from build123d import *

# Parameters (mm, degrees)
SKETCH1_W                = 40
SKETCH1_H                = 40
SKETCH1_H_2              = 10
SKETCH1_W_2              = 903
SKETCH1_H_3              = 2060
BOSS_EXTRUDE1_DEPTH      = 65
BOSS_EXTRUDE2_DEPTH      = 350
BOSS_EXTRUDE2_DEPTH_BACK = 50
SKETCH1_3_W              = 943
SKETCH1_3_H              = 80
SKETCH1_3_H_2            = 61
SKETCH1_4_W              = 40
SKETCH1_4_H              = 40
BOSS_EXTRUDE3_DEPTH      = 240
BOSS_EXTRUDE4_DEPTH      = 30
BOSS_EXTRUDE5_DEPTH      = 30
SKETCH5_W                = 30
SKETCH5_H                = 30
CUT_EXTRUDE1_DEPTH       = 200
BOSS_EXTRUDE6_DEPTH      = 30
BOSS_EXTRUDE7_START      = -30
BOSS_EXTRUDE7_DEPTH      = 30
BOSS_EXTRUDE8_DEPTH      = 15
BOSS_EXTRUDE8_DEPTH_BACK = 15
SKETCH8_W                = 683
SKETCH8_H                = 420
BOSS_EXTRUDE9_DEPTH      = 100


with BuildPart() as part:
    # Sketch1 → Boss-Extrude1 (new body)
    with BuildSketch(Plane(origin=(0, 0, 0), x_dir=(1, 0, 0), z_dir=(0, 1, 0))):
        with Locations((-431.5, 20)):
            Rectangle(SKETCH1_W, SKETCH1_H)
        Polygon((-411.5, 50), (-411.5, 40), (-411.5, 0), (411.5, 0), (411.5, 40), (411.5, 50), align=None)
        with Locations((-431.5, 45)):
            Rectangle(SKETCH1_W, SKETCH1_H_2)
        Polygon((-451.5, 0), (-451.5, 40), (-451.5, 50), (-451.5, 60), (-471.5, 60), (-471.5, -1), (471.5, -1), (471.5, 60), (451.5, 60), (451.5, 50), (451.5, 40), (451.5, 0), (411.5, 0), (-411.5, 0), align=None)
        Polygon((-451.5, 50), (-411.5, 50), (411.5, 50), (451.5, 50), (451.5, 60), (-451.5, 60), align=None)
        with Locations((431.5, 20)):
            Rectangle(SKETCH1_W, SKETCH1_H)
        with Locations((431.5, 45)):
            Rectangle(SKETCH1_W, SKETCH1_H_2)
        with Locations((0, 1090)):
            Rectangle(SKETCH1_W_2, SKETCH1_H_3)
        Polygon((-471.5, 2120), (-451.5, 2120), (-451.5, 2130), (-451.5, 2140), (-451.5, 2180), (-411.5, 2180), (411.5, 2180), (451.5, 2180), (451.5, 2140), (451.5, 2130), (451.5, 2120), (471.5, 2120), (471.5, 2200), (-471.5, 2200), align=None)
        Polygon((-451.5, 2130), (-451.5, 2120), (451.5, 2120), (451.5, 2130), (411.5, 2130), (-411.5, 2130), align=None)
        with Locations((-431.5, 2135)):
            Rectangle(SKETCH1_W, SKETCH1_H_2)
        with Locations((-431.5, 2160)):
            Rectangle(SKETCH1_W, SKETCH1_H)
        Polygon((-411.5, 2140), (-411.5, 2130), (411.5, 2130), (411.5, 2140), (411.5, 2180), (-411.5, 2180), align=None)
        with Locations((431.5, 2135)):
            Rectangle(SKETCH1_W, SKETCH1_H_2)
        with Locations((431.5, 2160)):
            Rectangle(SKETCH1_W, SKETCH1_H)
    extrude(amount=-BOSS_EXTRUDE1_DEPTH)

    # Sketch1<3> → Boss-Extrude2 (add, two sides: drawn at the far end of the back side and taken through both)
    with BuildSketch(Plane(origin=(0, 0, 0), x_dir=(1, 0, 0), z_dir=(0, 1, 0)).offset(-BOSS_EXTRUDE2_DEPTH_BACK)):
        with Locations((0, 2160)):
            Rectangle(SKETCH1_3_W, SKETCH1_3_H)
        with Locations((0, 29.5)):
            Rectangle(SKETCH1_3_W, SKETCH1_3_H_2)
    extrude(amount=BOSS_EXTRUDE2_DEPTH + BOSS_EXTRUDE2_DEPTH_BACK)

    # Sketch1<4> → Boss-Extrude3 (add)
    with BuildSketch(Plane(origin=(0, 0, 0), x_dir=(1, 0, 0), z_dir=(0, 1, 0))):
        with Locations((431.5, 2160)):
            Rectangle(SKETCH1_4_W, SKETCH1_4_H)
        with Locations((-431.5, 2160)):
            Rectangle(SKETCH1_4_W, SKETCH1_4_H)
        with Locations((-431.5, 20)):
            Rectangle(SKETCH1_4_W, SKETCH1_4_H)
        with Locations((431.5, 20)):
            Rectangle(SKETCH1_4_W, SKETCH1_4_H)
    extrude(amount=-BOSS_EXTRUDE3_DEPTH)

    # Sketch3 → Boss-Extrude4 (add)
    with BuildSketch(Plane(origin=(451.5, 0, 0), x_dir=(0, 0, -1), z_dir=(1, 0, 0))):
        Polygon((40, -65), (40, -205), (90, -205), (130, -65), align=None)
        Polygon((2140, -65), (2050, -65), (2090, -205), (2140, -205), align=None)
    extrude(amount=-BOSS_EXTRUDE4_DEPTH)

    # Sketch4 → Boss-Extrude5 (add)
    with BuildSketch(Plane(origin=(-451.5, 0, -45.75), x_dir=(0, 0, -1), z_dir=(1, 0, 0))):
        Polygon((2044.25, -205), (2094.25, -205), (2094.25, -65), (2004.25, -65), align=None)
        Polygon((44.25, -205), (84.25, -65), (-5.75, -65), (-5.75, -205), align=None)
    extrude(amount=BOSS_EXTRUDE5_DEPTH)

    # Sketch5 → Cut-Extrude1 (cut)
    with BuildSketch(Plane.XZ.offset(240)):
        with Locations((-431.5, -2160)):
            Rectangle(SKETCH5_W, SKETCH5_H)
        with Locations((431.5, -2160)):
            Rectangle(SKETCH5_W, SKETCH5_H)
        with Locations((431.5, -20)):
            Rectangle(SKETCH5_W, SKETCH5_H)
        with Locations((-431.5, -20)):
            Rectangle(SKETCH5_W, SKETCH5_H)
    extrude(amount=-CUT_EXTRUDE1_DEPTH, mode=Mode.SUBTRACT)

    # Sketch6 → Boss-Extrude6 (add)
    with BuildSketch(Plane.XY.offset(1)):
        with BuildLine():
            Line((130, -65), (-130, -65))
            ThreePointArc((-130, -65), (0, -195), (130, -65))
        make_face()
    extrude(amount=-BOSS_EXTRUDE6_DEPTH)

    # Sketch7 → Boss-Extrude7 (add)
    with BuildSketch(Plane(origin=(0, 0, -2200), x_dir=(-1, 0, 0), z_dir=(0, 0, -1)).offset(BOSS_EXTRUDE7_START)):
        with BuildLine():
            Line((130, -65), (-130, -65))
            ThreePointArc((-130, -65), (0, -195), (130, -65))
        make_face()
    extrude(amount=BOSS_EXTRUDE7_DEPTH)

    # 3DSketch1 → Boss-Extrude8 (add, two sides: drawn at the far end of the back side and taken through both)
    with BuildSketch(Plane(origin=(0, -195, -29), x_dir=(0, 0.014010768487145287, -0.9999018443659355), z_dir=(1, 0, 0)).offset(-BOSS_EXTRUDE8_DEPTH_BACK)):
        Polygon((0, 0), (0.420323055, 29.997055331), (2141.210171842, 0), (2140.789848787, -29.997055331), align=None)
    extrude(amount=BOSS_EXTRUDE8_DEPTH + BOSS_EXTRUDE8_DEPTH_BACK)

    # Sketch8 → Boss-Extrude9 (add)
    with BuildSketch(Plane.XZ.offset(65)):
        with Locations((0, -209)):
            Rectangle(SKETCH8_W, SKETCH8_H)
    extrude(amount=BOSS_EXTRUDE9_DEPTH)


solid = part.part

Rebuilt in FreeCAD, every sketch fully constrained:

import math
import FreeCAD as App
import Part
import Sketcher

V = App.Vector


def add_polygon(sketch, points):
    """Adds a closed chain of lines whose ends are joined by coincident constraints."""
    first, n = sketch.GeometryCount, len(points)
    for a, b in zip(points, points[1:] + points[:1]):
        sketch.addGeometry(Part.LineSegment(App.Vector(*a, 0), App.Vector(*b, 0)), False)
    for i in range(n):
        sketch.addConstraint(Sketcher.Constraint("Coincident", first + i, 2, first + (i + 1) % n, 1))

doc = App.newDocument("Part")
params = doc.addObject("Spreadsheet::Sheet", "Params")
for row, (alias, value) in enumerate([
    ("sketch1_width", "943 mm"),
    ("sketch1_width2", "20 mm"),
    ("sketch1_height", "61 mm"),
    ("sketch1_height2", "2060 mm"),
    ("sketch1_height3", "80 mm"),
    ("pad1_length", "65 mm"),
    ("sketch2_width", "943 mm"),
    ("sketch2_height", "80 mm"),
    ("sketch2_height2", "61 mm"),
    ("pad2_length", "350 mm"),
    ("pad2_length2", "50 mm"),
    ("sketch3_width", "40 mm"),
    ("pad3_length", "240 mm"),
    ("sketch4_width", "140 mm"),
    ("sketch4_height", "50 mm"),
    ("sketch4_height2", "90 mm"),
    ("pad4_length", "30 mm"),
    ("sketch5_width", "140 mm"),
    ("sketch5_height", "50 mm"),
    ("sketch5_height2", "90 mm"),
    ("pad5_length", "30 mm"),
    ("sketch6_width", "30 mm"),
    ("pocket1_length", "200 mm"),
    ("sketch7_radius", "130 mm"),
    ("pad6_length", "30 mm"),
    ("sketch8_radius", "130 mm"),
    ("pad7_length", "30 mm"),
    ("sketch9_width", "30 mm"),
    ("sketch9_height", "2140.999999 mm"),
    ("pad8_length", "15 mm"),
    ("pad8_length2", "15 mm"),
    ("sketch10_width", "683 mm"),
    ("sketch10_height", "420 mm"),
    ("pad9_length", "100 mm"),
], start=1):
    params.set(f"A{row}", alias)
    params.set(f"B{row}", "=" + value)
    params.setAlias(f"B{row}", alias)

body = doc.addObject("PartDesign::Body", "Body")

sketch1 = doc.addObject("Sketcher::SketchObject", "Sketch")
body.addObject(sketch1)
sketch1.AttachmentSupport = (doc.XZ_Plane, [""])
sketch1.MapMode = "FlatFace"
add_polygon(sketch1, [(-472, -60), (-472, 1), (472, 1), (472, -60), (452, -60), (452, -2120), (472, -2120), (472, -2200), (-472, -2200), (-472, -2120), (-452, -2120), (-452, -60)])
sketch1.addConstraint(Sketcher.Constraint("Vertical", 0))
sketch1.addConstraint(Sketcher.Constraint("Horizontal", 1))
sketch1.addConstraint(Sketcher.Constraint("Vertical", 2))
sketch1.addConstraint(Sketcher.Constraint("Horizontal", 3))
sketch1.addConstraint(Sketcher.Constraint("Vertical", 4))
sketch1.addConstraint(Sketcher.Constraint("Horizontal", 5))
sketch1.addConstraint(Sketcher.Constraint("Vertical", 6))
sketch1.addConstraint(Sketcher.Constraint("Horizontal", 7))
sketch1.addConstraint(Sketcher.Constraint("Vertical", 8))
sketch1.addConstraint(Sketcher.Constraint("Horizontal", 9))
sketch1.addConstraint(Sketcher.Constraint("Vertical", 10))
sketch1.addConstraint(Sketcher.Constraint("Horizontal", 11))
sketch1.addConstraint(Sketcher.Constraint("Symmetric", 5, 2, 8, 2, -2))
sketch1.addConstraint(Sketcher.Constraint("Symmetric", 3, 2, 10, 2, -2))
sketch1.addConstraint(Sketcher.Constraint("Vertical", 2, 2, 5, 2))
sketch1.addConstraint(Sketcher.Constraint("Vertical", 0, 2, 7, 2))
sketch1.addConstraint(Sketcher.Constraint("DistanceX", 1, 1, 1, 2, 943.0))
sketch1.addConstraint(Sketcher.Constraint("DistanceX", 3, 2, 3, 1, 20.0))
sketch1.addConstraint(Sketcher.Constraint("DistanceY", 0, 1, 0, 2, 61.0))
sketch1.addConstraint(Sketcher.Constraint("DistanceY", 4, 2, 4, 1, 2060.0))
sketch1.addConstraint(Sketcher.Constraint("DistanceY", 6, 2, 6, 1, 80.0))
sketch1.addConstraint(Sketcher.Constraint("DistanceY", -1, 1, 0, 2, 1.0))
sketch1.setExpression("Constraints[28]", "Params.sketch1_width")
sketch1.setExpression("Constraints[29]", "Params.sketch1_width2")
sketch1.setExpression("Constraints[30]", "Params.sketch1_height")
sketch1.setExpression("Constraints[31]", "Params.sketch1_height2")
sketch1.setExpression("Constraints[32]", "Params.sketch1_height3")
pad1 = doc.addObject("PartDesign::Pad", "Pad")
body.addObject(pad1)
pad1.Profile = sketch1
pad1.setExpression("Length", "Params.pad1_length")

sketch2 = doc.addObject("Sketcher::SketchObject", "Sketch001")
body.addObject(sketch2)
sketch2.AttachmentSupport = (doc.XZ_Plane, [""])
sketch2.MapMode = "FlatFace"
add_polygon(sketch2, [(-472, -2200), (-472, -2120), (472, -2120), (472, -2200)])
add_polygon(sketch2, [(-472, -60), (-472, 1), (472, 1), (472, -60)])
sketch2.addConstraint(Sketcher.Constraint("Vertical", 0))
sketch2.addConstraint(Sketcher.Constraint("Horizontal", 1))
sketch2.addConstraint(Sketcher.Constraint("Vertical", 2))
sketch2.addConstraint(Sketcher.Constraint("Horizontal", 3))
sketch2.addConstraint(Sketcher.Constraint("Vertical", 4))
sketch2.addConstraint(Sketcher.Constraint("Horizontal", 5))
sketch2.addConstraint(Sketcher.Constraint("Vertical", 6))
sketch2.addConstraint(Sketcher.Constraint("Horizontal", 7))
sketch2.addConstraint(Sketcher.Constraint("Vertical", 3, 2, 4, 2))
sketch2.addConstraint(Sketcher.Constraint("Vertical", 2, 2, 5, 2))
sketch2.addConstraint(Sketcher.Constraint("DistanceX", 1, 1, 1, 2, 943.0))
sketch2.addConstraint(Sketcher.Constraint("DistanceY", 0, 1, 0, 2, 80.0))
sketch2.addConstraint(Sketcher.Constraint("DistanceY", 4, 1, 4, 2, 61.0))
sketch2.addConstraint(Sketcher.Constraint("DistanceY", 0, 2, -1, 1, 2120.0))
sketch2.addConstraint(Sketcher.Constraint("DistanceY", -1, 1, 4, 2, 1.0))
sketch2.addConstraint(Sketcher.Constraint("DistanceX", 0, 2, -1, 1, 471.5))
sketch2.setExpression("Constraints[18]", "Params.sketch2_width")
sketch2.setExpression("Constraints[19]", "Params.sketch2_height")
sketch2.setExpression("Constraints[20]", "Params.sketch2_height2")
pad2 = doc.addObject("PartDesign::Pad", "Pad001")
body.addObject(pad2)
pad2.Profile = sketch2
pad2.Type = "TwoLengths"
pad2.setExpression("Length", "Params.pad2_length")
pad2.setExpression("Length2", "Params.pad2_length2")
pad2.Reversed = True

sketch3 = doc.addObject("Sketcher::SketchObject", "Sketch002")
body.addObject(sketch3)
sketch3.AttachmentSupport = (doc.XZ_Plane, [""])
sketch3.MapMode = "FlatFace"
add_polygon(sketch3, [(412, -2180), (412, -2140), (452, -2140), (452, -2180)])
add_polygon(sketch3, [(-452, -2180), (-452, -2140), (-412, -2140), (-412, -2180)])
add_polygon(sketch3, [(-452, -40), (-452, 0), (-412, 0), (-412, -40)])
add_polygon(sketch3, [(412, -40), (412, 0), (452, 0), (452, -40)])
sketch3.addConstraint(Sketcher.Constraint("Vertical", 0))
sketch3.addConstraint(Sketcher.Constraint("Horizontal", 1))
sketch3.addConstraint(Sketcher.Constraint("Vertical", 2))
sketch3.addConstraint(Sketcher.Constraint("Horizontal", 3))
sketch3.addConstraint(Sketcher.Constraint("Vertical", 4))
sketch3.addConstraint(Sketcher.Constraint("Horizontal", 5))
sketch3.addConstraint(Sketcher.Constraint("Vertical", 6))
sketch3.addConstraint(Sketcher.Constraint("Horizontal", 7))
sketch3.addConstraint(Sketcher.Constraint("Vertical", 8))
sketch3.addConstraint(Sketcher.Constraint("Horizontal", 9))
sketch3.addConstraint(Sketcher.Constraint("Vertical", 10))
sketch3.addConstraint(Sketcher.Constraint("Horizontal", 11))
sketch3.addConstraint(Sketcher.Constraint("Vertical", 12))
sketch3.addConstraint(Sketcher.Constraint("Horizontal", 13))
sketch3.addConstraint(Sketcher.Constraint("Vertical", 14))
sketch3.addConstraint(Sketcher.Constraint("Horizontal", 15))
sketch3.addConstraint(Sketcher.Constraint("Symmetric", 9, 2, 12, 2, -1, 1))
sketch3.addConstraint(Sketcher.Constraint("Symmetric", 1, 2, 4, 2, -2))
sketch3.addConstraint(Sketcher.Constraint("Symmetric", 3, 2, 6, 2, -2))
sketch3.addConstraint(Sketcher.Constraint("Symmetric", 8, 2, 13, 2, -2))
sketch3.addConstraint(Sketcher.Constraint("Horizontal", 11, 2, 14, 2))
sketch3.addConstraint(Sketcher.Constraint("Vertical", 7, 2, 8, 2))
sketch3.addConstraint(Sketcher.Constraint("Vertical", 6, 2, 9, 2))
sketch3.addConstraint(Sketcher.Constraint("Equal", 15, 0))
sketch3.addConstraint(Sketcher.Constraint("Equal", 6, 8))
sketch3.addConstraint(Sketcher.Constraint("DistanceX", 1, 1, 1, 2, 40.0))
sketch3.addConstraint(Sketcher.Constraint("DistanceY", 0, 2, -1, 1, 2140.0))
sketch3.addConstraint(Sketcher.Constraint("DistanceX", 4, 2, 0, 2, 863.0))
sketch3.setExpression("Constraints[41]", "Params.sketch3_width")
pad3 = doc.addObject("PartDesign::Pad", "Pad002")
body.addObject(pad3)
pad3.Profile = sketch3
pad3.setExpression("Length", "Params.pad3_length")

sketch4 = doc.addObject("Sketcher::SketchObject", "Sketch003")
body.addObject(sketch4)
sketch4.AttachmentSupport = (doc.YZ_Plane, [""])
sketch4.MapMode = "FlatFace"
sketch4.AttachmentOffset = App.Placement(V(0, 0, 451.5), App.Rotation())
add_polygon(sketch4, [(-65, -40), (-205, -40), (-205, -90), (-65, -130)])
add_polygon(sketch4, [(-65, -2140), (-65, -2050), (-205, -2090), (-205, -2140)])
sketch4.addConstraint(Sketcher.Constraint("Horizontal", 0))
sketch4.addConstraint(Sketcher.Constraint("Vertical", 1))
sketch4.addConstraint(Sketcher.Constraint("Vertical", 3))
sketch4.addConstraint(Sketcher.Constraint("Vertical", 4))
sketch4.addConstraint(Sketcher.Constraint("Vertical", 6))
sketch4.addConstraint(Sketcher.Constraint("Horizontal", 7))
sketch4.addConstraint(Sketcher.Constraint("Vertical", 3, 2, 4, 2))
sketch4.addConstraint(Sketcher.Constraint("Vertical", 1, 2, 5, 2))
sketch4.addConstraint(Sketcher.Constraint("Equal", 3, 4))
sketch4.addConstraint(Sketcher.Constraint("Equal", 1, 6))
sketch4.addConstraint(Sketcher.Constraint("DistanceX", 0, 2, 0, 1, 140.0))
sketch4.addConstraint(Sketcher.Constraint("DistanceY", 1, 2, 1, 1, 50.0))
sketch4.addConstraint(Sketcher.Constraint("DistanceY", 3, 1, 3, 2, 90.0))
sketch4.addConstraint(Sketcher.Constraint("DistanceX", 0, 2, -1, 1, 205.0))
sketch4.addConstraint(Sketcher.Constraint("DistanceY", 0, 2, -1, 1, 40.0))
sketch4.addConstraint(Sketcher.Constraint("DistanceY", 4, 2, -1, 1, 2050.0))
sketch4.setExpression("Constraints[18]", "Params.sketch4_width")
sketch4.setExpression("Constraints[19]", "Params.sketch4_height")
sketch4.setExpression("Constraints[20]", "Params.sketch4_height2")
pad4 = doc.addObject("PartDesign::Pad", "Pad003")
body.addObject(pad4)
pad4.Profile = sketch4
pad4.setExpression("Length", "Params.pad4_length")
pad4.Reversed = True

sketch5 = doc.addObject("Sketcher::SketchObject", "Sketch004")
body.addObject(sketch5)
sketch5.AttachmentSupport = (doc.YZ_Plane, [""])
sketch5.MapMode = "FlatFace"
sketch5.AttachmentOffset = App.Placement(V(0, 0, -451.5), App.Rotation())
add_polygon(sketch5, [(-205, -2090), (-205, -2140), (-65, -2140), (-65, -2050)])
add_polygon(sketch5, [(-205, -90), (-65, -130), (-65, -40), (-205, -40)])
sketch5.addConstraint(Sketcher.Constraint("Vertical", 0))
sketch5.addConstraint(Sketcher.Constraint("Horizontal", 1))
sketch5.addConstraint(Sketcher.Constraint("Vertical", 2))
sketch5.addConstraint(Sketcher.Constraint("Vertical", 5))
sketch5.addConstraint(Sketcher.Constraint("Horizontal", 6))
sketch5.addConstraint(Sketcher.Constraint("Vertical", 7))
sketch5.addConstraint(Sketcher.Constraint("Vertical", 2, 2, 4, 2))
sketch5.addConstraint(Sketcher.Constraint("Vertical", 3, 2, 6, 2))
sketch5.addConstraint(Sketcher.Constraint("Equal", 2, 5))
sketch5.addConstraint(Sketcher.Constraint("Equal", 0, 7))
sketch5.addConstraint(Sketcher.Constraint("DistanceX", 1, 1, 1, 2, 140.0))
sketch5.addConstraint(Sketcher.Constraint("DistanceY", 0, 2, 0, 1, 50.0))
sketch5.addConstraint(Sketcher.Constraint("DistanceY", 2, 1, 2, 2, 90.0))
sketch5.addConstraint(Sketcher.Constraint("DistanceX", 0, 2, -1, 1, 205.0))
sketch5.addConstraint(Sketcher.Constraint("DistanceY", 0, 2, -1, 1, 2140.0))
sketch5.addConstraint(Sketcher.Constraint("DistanceY", 4, 2, -1, 1, 130.0))
sketch5.setExpression("Constraints[18]", "Params.sketch5_width")
sketch5.setExpression("Constraints[19]", "Params.sketch5_height")
sketch5.setExpression("Constraints[20]", "Params.sketch5_height2")
pad5 = doc.addObject("PartDesign::Pad", "Pad004")
body.addObject(pad5)
pad5.Profile = sketch5
pad5.setExpression("Length", "Params.pad5_length")

sketch6 = doc.addObject("Sketcher::SketchObject", "Sketch005")
body.addObject(sketch6)
sketch6.AttachmentSupport = (doc.XZ_Plane, [""])
sketch6.MapMode = "FlatFace"
sketch6.AttachmentOffset = App.Placement(V(0, 0, 240), App.Rotation())
add_polygon(sketch6, [(-446, -2145), (-446, -2175), (-416, -2175), (-416, -2145)])
add_polygon(sketch6, [(416, -2145), (416, -2175), (446, -2175), (446, -2145)])
add_polygon(sketch6, [(416, -5), (416, -35), (446, -35), (446, -5)])
add_polygon(sketch6, [(-446, -5), (-446, -35), (-416, -35), (-416, -5)])
sketch6.addConstraint(Sketcher.Constraint("Vertical", 0))
sketch6.addConstraint(Sketcher.Constraint("Horizontal", 1))
sketch6.addConstraint(Sketcher.Constraint("Vertical", 2))
sketch6.addConstraint(Sketcher.Constraint("Horizontal", 3))
sketch6.addConstraint(Sketcher.Constraint("Vertical", 4))
sketch6.addConstraint(Sketcher.Constraint("Horizontal", 5))
sketch6.addConstraint(Sketcher.Constraint("Vertical", 6))
sketch6.addConstraint(Sketcher.Constraint("Horizontal", 7))
sketch6.addConstraint(Sketcher.Constraint("Vertical", 8))
sketch6.addConstraint(Sketcher.Constraint("Horizontal", 9))
sketch6.addConstraint(Sketcher.Constraint("Vertical", 10))
sketch6.addConstraint(Sketcher.Constraint("Horizontal", 11))
sketch6.addConstraint(Sketcher.Constraint("Vertical", 12))
sketch6.addConstraint(Sketcher.Constraint("Horizontal", 13))
sketch6.addConstraint(Sketcher.Constraint("Vertical", 14))
sketch6.addConstraint(Sketcher.Constraint("Horizontal", 15))
sketch6.addConstraint(Sketcher.Constraint("Symmetric", 1, 2, 4, 2, -2))
sketch6.addConstraint(Sketcher.Constraint("Symmetric", 3, 2, 6, 2, -2))
sketch6.addConstraint(Sketcher.Constraint("Symmetric", 9, 2, 12, 2, -2))
sketch6.addConstraint(Sketcher.Constraint("Symmetric", 11, 2, 14, 2, -2))
sketch6.addConstraint(Sketcher.Constraint("Vertical", 7, 2, 8, 2))
sketch6.addConstraint(Sketcher.Constraint("Vertical", 6, 2, 9, 2))
sketch6.addConstraint(Sketcher.Constraint("Equal", 15, 0))
sketch6.addConstraint(Sketcher.Constraint("Equal", 6, 8))
sketch6.addConstraint(Sketcher.Constraint("DistanceX", 1, 1, 1, 2, 30.0))
sketch6.addConstraint(Sketcher.Constraint("DistanceY", 0, 2, -1, 1, 2175.0))
sketch6.addConstraint(Sketcher.Constraint("DistanceY", 8, 2, -1, 1, 35.0))
sketch6.addConstraint(Sketcher.Constraint("DistanceX", 1, 2, 4, 2, 833.0))
sketch6.setExpression("Constraints[40]", "Params.sketch6_width")
pocket1 = doc.addObject("PartDesign::Pocket", "Pocket")
body.addObject(pocket1)
pocket1.Profile = sketch6
pocket1.setExpression("Length", "Params.pocket1_length")

sketch7 = doc.addObject("Sketcher::SketchObject", "Sketch006")
body.addObject(sketch7)
sketch7.AttachmentSupport = (doc.XY_Plane, [""])
sketch7.MapMode = "FlatFace"
sketch7.AttachmentOffset = App.Placement(V(0, 0, 1), App.Rotation())
sketch7.addGeometry(Part.LineSegment(V(130, -65, 0), V(-130, -65, 0)), False)
sketch7.addGeometry(Part.ArcOfCircle(Part.Circle(V(0, -65, 0), V(0, 0, 1), 130), math.radians(180), math.radians(360)), False)
sketch7.addConstraint(Sketcher.Constraint("Coincident", 0, 1, 1, 2))
sketch7.addConstraint(Sketcher.Constraint("Coincident", 1, 1, 0, 2))
sketch7.addConstraint(Sketcher.Constraint("Horizontal", 0))
sketch7.addConstraint(Sketcher.Constraint("PointOnObject", 1, 3, -2))
sketch7.addConstraint(Sketcher.Constraint("Horizontal", 1, 3, 0, 1))
sketch7.addConstraint(Sketcher.Constraint("Radius", 1, 130.0))
sketch7.addConstraint(Sketcher.Constraint("DistanceY", 1, 3, -1, 1, 65.0))
sketch7.setExpression("Constraints[5]", "Params.sketch7_radius")
pad6 = doc.addObject("PartDesign::Pad", "Pad005")
body.addObject(pad6)
pad6.Profile = sketch7
pad6.setExpression("Length", "Params.pad6_length")
pad6.Reversed = True

sketch8 = doc.addObject("Sketcher::SketchObject", "Sketch007")
body.addObject(sketch8)
sketch8.AttachmentSupport = (doc.XY_Plane, [""])
sketch8.MapMode = "FlatFace"
sketch8.AttachmentOffset = App.Placement(V(0, 0, -2170), App.Rotation())
sketch8.addGeometry(Part.LineSegment(V(-130, -65, 0), V(130, -65, 0)), False)
sketch8.addGeometry(Part.ArcOfCircle(Part.Circle(V(0, -65, 0), V(0, 0, 1), 130), math.radians(180), math.radians(360)), False)
sketch8.addConstraint(Sketcher.Constraint("Coincident", 0, 1, 1, 1))
sketch8.addConstraint(Sketcher.Constraint("Coincident", 1, 2, 0, 2))
sketch8.addConstraint(Sketcher.Constraint("Horizontal", 0))
sketch8.addConstraint(Sketcher.Constraint("PointOnObject", 1, 3, -2))
sketch8.addConstraint(Sketcher.Constraint("Horizontal", 1, 3, 0, 1))
sketch8.addConstraint(Sketcher.Constraint("Radius", 1, 130.0))
sketch8.addConstraint(Sketcher.Constraint("DistanceY", 1, 3, -1, 1, 65.0))
sketch8.setExpression("Constraints[5]", "Params.sketch8_radius")
pad7 = doc.addObject("PartDesign::Pad", "Pad006")
body.addObject(pad7)
pad7.Profile = sketch8
pad7.setExpression("Length", "Params.pad7_length")
pad7.Reversed = True

sketch9 = doc.addObject("Sketcher::SketchObject", "Sketch008")
body.addObject(sketch9)
sketch9.AttachmentSupport = (doc.YZ_Plane, [""])
sketch9.MapMode = "FlatFace"
add_polygon(sketch9, [(-165, -29), (-195, -29), (-195, -2170), (-165, -2170)])
sketch9.addConstraint(Sketcher.Constraint("Horizontal", 0))
sketch9.addConstraint(Sketcher.Constraint("Vertical", 1))
sketch9.addConstraint(Sketcher.Constraint("Horizontal", 2))
sketch9.addConstraint(Sketcher.Constraint("Vertical", 3))
sketch9.addConstraint(Sketcher.Constraint("DistanceX", 0, 2, 0, 1, 30.0))
sketch9.addConstraint(Sketcher.Constraint("DistanceY", 1, 2, 1, 1, 2140.999999))
sketch9.addConstraint(Sketcher.Constraint("DistanceX", 0, 2, -1, 1, 195.0))
sketch9.addConstraint(Sketcher.Constraint("DistanceY", 0, 2, -1, 1, 29.0))
sketch9.setExpression("Constraints[8]", "Params.sketch9_width")
sketch9.setExpression("Constraints[9]", "Params.sketch9_height")
pad8 = doc.addObject("PartDesign::Pad", "Pad007")
body.addObject(pad8)
pad8.Profile = sketch9
pad8.Type = "TwoLengths"
pad8.setExpression("Length", "Params.pad8_length")
pad8.setExpression("Length2", "Params.pad8_length2")

sketch10 = doc.addObject("Sketcher::SketchObject", "Sketch009")
body.addObject(sketch10)
sketch10.AttachmentSupport = (doc.XZ_Plane, [""])
sketch10.MapMode = "FlatFace"
sketch10.AttachmentOffset = App.Placement(V(0, 0, 65), App.Rotation())
add_polygon(sketch10, [(-342, 1), (-342, -419), (342, -419), (342, 1)])
sketch10.addConstraint(Sketcher.Constraint("Vertical", 0))
sketch10.addConstraint(Sketcher.Constraint("Horizontal", 1))
sketch10.addConstraint(Sketcher.Constraint("Vertical", 2))
sketch10.addConstraint(Sketcher.Constraint("Horizontal", 3))
sketch10.addConstraint(Sketcher.Constraint("DistanceX", 1, 1, 1, 2, 683.0))
sketch10.addConstraint(Sketcher.Constraint("DistanceY", 0, 2, 0, 1, 420.0))
sketch10.addConstraint(Sketcher.Constraint("DistanceY", 0, 2, -1, 1, 419.0))
sketch10.addConstraint(Sketcher.Constraint("DistanceX", 0, 2, -1, 1, 341.5))
sketch10.setExpression("Constraints[8]", "Params.sketch10_width")
sketch10.setExpression("Constraints[9]", "Params.sketch10_height")
pad9 = doc.addObject("PartDesign::Pad", "Pad008")
body.addObject(pad9)
pad9.Profile = sketch10
pad9.setExpression("Length", "Params.pad9_length")

doc.recompute()
